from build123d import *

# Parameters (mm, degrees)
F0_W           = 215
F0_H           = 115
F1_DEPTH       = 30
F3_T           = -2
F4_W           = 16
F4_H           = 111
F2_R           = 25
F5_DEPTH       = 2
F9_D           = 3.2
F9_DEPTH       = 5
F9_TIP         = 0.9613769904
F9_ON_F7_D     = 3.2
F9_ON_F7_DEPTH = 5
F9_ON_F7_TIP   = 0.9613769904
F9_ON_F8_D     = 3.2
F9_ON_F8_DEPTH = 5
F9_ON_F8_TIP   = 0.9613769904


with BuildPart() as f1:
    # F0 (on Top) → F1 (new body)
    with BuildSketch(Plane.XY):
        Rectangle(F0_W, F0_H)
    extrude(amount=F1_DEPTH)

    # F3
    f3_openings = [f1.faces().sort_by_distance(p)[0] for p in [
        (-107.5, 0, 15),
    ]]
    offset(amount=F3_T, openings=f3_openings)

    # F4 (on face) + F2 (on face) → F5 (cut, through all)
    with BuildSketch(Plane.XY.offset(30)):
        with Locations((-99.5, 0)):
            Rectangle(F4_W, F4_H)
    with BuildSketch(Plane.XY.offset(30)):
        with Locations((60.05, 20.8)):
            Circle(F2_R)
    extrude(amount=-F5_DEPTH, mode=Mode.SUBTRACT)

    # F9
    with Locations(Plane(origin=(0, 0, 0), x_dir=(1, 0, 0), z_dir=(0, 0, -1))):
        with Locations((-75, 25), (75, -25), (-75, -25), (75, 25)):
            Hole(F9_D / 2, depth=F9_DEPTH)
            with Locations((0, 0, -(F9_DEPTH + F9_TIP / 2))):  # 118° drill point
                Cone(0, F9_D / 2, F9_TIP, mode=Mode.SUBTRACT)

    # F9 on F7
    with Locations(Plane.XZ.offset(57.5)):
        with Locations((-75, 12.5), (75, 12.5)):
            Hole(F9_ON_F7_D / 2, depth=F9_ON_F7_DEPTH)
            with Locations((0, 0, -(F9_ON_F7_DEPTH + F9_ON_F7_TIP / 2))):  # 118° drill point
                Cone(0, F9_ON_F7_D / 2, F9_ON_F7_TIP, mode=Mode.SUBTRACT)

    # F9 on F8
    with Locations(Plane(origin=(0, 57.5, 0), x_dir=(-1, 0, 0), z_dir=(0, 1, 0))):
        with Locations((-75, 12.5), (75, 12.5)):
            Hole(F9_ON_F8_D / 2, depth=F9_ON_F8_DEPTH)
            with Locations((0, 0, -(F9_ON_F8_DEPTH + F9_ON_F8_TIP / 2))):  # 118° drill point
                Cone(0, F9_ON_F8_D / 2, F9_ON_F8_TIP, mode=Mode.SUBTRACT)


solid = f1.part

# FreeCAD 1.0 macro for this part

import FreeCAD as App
import Part
import Sketcher
Q = App.Units.Quantity


def faces_at(feature, points):
    """Names of the faces that lie closest to the given points."""
    faces = feature.Shape.Faces
    near = lambda p: min(range(len(faces)), key=lambda i: faces[i].distToShape(Part.Vertex(*p))[0])
    return sorted({f"Face{near(p) + 1}" for p in points})


def add_polygon(sketch, points):
    """Adds a closed chain of lines whose ends are joined by coincident constraints."""
    first, n = sketch.GeometryCount, len(points)
    for a, b in zip(points, points[1:] + points[:1]):
        sketch.addGeometry(Part.LineSegment(App.Vector(*a, 0), App.Vector(*b, 0)), False)
    for i in range(n):
        sketch.addConstraint(Sketcher.Constraint("Coincident", first + i, 2, first + (i + 1) % n, 1))

doc = App.newDocument("Part")
body = doc.addObject("PartDesign::Body", "Body")

# Sketch on XY plane
sketch1 = body.newObject("Sketcher::SketchObject", "Sketch")
sketch1.AttachmentSupport = (doc.getObject("XY_Plane"), [""])
sketch1.MapMode = "FlatFace"
add_polygon(sketch1, [(-108, 58), (-108, -58), (108, -58), (108, 58)])  # lines 0-3
sketch1.addConstraint([
    Sketcher.Constraint("Vertical", 0),
    Sketcher.Constraint("Horizontal", 1),
    Sketcher.Constraint("Vertical", 2),
    Sketcher.Constraint("Horizontal", 3),
    Sketcher.Constraint("Symmetric", 0, 2, 2, 2, -1, 1),
    Sketcher.Constraint("DistanceX", 1, 1, 1, 2, Q("215 mm")),
    Sketcher.Constraint("DistanceY", 0, 2, 0, 1, Q("115 mm")),
])
pad1 = body.newObject("PartDesign::Pad", "Pad")
pad1.Profile = sketch1
pad1.Length = 30
doc.recompute()

thickness = body.newObject("PartDesign::Thickness", "Thickness")
thickness.Base = (pad1, faces_at(pad1, [(-107.5, 0, 15)]))
thickness.Value = 2
thickness.Reversed = True
thickness.Join = "Arc"

# Sketch on XY plane
sketch2 = body.newObject("Sketcher::SketchObject", "Sketch001")
sketch2.AttachmentSupport = (doc.getObject("XY_Plane"), [""])
sketch2.MapMode = "FlatFace"
sketch2.AttachmentOffset = App.Placement(App.Vector(0, 0, 30), App.Rotation())
add_polygon(sketch2, [(-108, 56), (-108, -56), (-92, -56), (-92, 56)])  # lines 0-3
sketch2.addGeometry(Part.Circle(App.Vector(60, 21, 0), App.Vector(0, 0, 1), 25), False)  # 4
sketch2.addConstraint([
    Sketcher.Constraint("Vertical", 0),
    Sketcher.Constraint("Horizontal", 1),
    Sketcher.Constraint("Vertical", 2),
    Sketcher.Constraint("Horizontal", 3),
    Sketcher.Constraint("Diameter", 4, Q("50 mm")),
    Sketcher.Constraint("DistanceX", 1, 1, 1, 2, Q("16 mm")),
    Sketcher.Constraint("DistanceY", 0, 2, 0, 1, Q("111 mm")),
    Sketcher.Constraint("DistanceY", -1, 1, 4, 3, Q("20.8 mm")),
    Sketcher.Constraint("DistanceX", 0, 2, -1, 1, Q("107.5 mm")),
    Sketcher.Constraint("DistanceY", 0, 2, -1, 1, Q("55.5 mm")),
    Sketcher.Constraint("DistanceX", -1, 1, 4, 3, Q("60.05 mm")),
])
pocket1 = body.newObject("PartDesign::Pocket", "Pocket")
pocket1.Profile = sketch2
pocket1.Length = 2

# Sketch on XY plane
sketch3 = body.newObject("Sketcher::SketchObject", "Sketch002")
sketch3.AttachmentSupport = (doc.getObject("XY_Plane"), [""])
sketch3.MapMode = "FlatFace"
sketch3.addGeometry([
    Part.Circle(App.Vector(-75, -25, 0), App.Vector(0, 0, 1), 1.6),
    Part.Circle(App.Vector(75, 25, 0), App.Vector(0, 0, 1), 1.6),
    Part.Circle(App.Vector(-75, 25, 0), App.Vector(0, 0, 1), 1.6),
    Part.Circle(App.Vector(75, -25, 0), App.Vector(0, 0, 1), 1.6),
], False)
sketch3.addConstraint([
    Sketcher.Constraint("Equal", 0, 1),
    Sketcher.Constraint("Equal", 1, 2),
    Sketcher.Constraint("Equal", 2, 3),
    Sketcher.Constraint("Symmetric", 0, 3, 1, 3, -1, 1),
    Sketcher.Constraint("Symmetric", 2, 3, 3, 3, -1, 1),
    Sketcher.Constraint("Symmetric", 1, 3, 2, 3, -2),
    Sketcher.Constraint("Diameter", 0, Q("3.2 mm")),
    Sketcher.Constraint("DistanceX", 0, 3, -1, 1, Q("75 mm")),
    Sketcher.Constraint("DistanceY", 0, 3, -1, 1, Q("25 mm")),
])
doc.recompute()
hole = body.newObject("PartDesign::Hole", "Hole")
hole.Profile = sketch3
hole.ThreadType = "None"
hole.Diameter = 3.2
hole.DepthType = "Dimension"
hole.Depth = 5
hole.DrillPoint = "Angled"
hole.DrillPointAngle = 118
hole.Reversed = True

# Sketch on XZ plane
sketch4 = body.newObject("Sketcher::SketchObject", "Sketch003")
sketch4.AttachmentSupport = (doc.getObject("XZ_Plane"), [""])
sketch4.MapMode = "FlatFace"
sketch4.AttachmentOffset = App.Placement(App.Vector(0, 0, 57.5), App.Rotation())
sketch4.addGeometry([
    Part.Circle(App.Vector(-75, 12.5, 0), App.Vector(0, 0, 1), 1.6),
    Part.Circle(App.Vector(75, 12.5, 0), App.Vector(0, 0, 1), 1.6),
], False)
sketch4.addConstraint([
    Sketcher.Constraint("Equal", 0, 1),
    Sketcher.Constraint("Symmetric", 0, 3, 1, 3, -2),
    Sketcher.Constraint("Diameter", 0, Q("3.2 mm")),
    Sketcher.Constraint("DistanceX", 0, 3, -1, 1, Q("75 mm")),
    Sketcher.Constraint("DistanceY", -1, 1, 0, 3, Q("12.5 mm")),
])
doc.recompute()
hole2 = body.newObject("PartDesign::Hole", "Hole001")
hole2.Profile = sketch4
hole2.ThreadType = "None"
hole2.Diameter = 3.2
hole2.DepthType = "Dimension"
hole2.Depth = 5
hole2.DrillPoint = "Angled"
hole2.DrillPointAngle = 118

# Sketch on XZ plane
sketch5 = body.newObject("Sketcher::SketchObject", "Sketch004")
sketch5.AttachmentSupport = (doc.getObject("XZ_Plane"), [""])
sketch5.MapMode = "FlatFace"
sketch5.AttachmentOffset = App.Placement(App.Vector(0, 0, -57.5), App.Rotation())
sketch5.addGeometry([
    Part.Circle(App.Vector(75, 12.5, 0), App.Vector(0, 0, 1), 1.6),
    Part.Circle(App.Vector(-75, 12.5, 0), App.Vector(0, 0, 1), 1.6),
], False)
sketch5.addConstraint([
    Sketcher.Constraint("Equal", 0, 1),
    Sketcher.Constraint("Symmetric", 0, 3, 1, 3, -2),
    Sketcher.Constraint("Diameter", 0, Q("3.2 mm")),
    Sketcher.Constraint("DistanceX", -1, 1, 0, 3, Q("75 mm")),
    Sketcher.Constraint("DistanceY", -1, 1, 0, 3, Q("12.5 mm")),
])
doc.recompute()
hole3 = body.newObject("PartDesign::Hole", "Hole002")
hole3.Profile = sketch5
hole3.ThreadType = "None"
hole3.Diameter = 3.2
hole3.DepthType = "Dimension"
hole3.Depth = 5
hole3.DrillPoint = "Angled"
hole3.DrillPointAngle = 118
hole3.Reversed = True

doc.recompute()
